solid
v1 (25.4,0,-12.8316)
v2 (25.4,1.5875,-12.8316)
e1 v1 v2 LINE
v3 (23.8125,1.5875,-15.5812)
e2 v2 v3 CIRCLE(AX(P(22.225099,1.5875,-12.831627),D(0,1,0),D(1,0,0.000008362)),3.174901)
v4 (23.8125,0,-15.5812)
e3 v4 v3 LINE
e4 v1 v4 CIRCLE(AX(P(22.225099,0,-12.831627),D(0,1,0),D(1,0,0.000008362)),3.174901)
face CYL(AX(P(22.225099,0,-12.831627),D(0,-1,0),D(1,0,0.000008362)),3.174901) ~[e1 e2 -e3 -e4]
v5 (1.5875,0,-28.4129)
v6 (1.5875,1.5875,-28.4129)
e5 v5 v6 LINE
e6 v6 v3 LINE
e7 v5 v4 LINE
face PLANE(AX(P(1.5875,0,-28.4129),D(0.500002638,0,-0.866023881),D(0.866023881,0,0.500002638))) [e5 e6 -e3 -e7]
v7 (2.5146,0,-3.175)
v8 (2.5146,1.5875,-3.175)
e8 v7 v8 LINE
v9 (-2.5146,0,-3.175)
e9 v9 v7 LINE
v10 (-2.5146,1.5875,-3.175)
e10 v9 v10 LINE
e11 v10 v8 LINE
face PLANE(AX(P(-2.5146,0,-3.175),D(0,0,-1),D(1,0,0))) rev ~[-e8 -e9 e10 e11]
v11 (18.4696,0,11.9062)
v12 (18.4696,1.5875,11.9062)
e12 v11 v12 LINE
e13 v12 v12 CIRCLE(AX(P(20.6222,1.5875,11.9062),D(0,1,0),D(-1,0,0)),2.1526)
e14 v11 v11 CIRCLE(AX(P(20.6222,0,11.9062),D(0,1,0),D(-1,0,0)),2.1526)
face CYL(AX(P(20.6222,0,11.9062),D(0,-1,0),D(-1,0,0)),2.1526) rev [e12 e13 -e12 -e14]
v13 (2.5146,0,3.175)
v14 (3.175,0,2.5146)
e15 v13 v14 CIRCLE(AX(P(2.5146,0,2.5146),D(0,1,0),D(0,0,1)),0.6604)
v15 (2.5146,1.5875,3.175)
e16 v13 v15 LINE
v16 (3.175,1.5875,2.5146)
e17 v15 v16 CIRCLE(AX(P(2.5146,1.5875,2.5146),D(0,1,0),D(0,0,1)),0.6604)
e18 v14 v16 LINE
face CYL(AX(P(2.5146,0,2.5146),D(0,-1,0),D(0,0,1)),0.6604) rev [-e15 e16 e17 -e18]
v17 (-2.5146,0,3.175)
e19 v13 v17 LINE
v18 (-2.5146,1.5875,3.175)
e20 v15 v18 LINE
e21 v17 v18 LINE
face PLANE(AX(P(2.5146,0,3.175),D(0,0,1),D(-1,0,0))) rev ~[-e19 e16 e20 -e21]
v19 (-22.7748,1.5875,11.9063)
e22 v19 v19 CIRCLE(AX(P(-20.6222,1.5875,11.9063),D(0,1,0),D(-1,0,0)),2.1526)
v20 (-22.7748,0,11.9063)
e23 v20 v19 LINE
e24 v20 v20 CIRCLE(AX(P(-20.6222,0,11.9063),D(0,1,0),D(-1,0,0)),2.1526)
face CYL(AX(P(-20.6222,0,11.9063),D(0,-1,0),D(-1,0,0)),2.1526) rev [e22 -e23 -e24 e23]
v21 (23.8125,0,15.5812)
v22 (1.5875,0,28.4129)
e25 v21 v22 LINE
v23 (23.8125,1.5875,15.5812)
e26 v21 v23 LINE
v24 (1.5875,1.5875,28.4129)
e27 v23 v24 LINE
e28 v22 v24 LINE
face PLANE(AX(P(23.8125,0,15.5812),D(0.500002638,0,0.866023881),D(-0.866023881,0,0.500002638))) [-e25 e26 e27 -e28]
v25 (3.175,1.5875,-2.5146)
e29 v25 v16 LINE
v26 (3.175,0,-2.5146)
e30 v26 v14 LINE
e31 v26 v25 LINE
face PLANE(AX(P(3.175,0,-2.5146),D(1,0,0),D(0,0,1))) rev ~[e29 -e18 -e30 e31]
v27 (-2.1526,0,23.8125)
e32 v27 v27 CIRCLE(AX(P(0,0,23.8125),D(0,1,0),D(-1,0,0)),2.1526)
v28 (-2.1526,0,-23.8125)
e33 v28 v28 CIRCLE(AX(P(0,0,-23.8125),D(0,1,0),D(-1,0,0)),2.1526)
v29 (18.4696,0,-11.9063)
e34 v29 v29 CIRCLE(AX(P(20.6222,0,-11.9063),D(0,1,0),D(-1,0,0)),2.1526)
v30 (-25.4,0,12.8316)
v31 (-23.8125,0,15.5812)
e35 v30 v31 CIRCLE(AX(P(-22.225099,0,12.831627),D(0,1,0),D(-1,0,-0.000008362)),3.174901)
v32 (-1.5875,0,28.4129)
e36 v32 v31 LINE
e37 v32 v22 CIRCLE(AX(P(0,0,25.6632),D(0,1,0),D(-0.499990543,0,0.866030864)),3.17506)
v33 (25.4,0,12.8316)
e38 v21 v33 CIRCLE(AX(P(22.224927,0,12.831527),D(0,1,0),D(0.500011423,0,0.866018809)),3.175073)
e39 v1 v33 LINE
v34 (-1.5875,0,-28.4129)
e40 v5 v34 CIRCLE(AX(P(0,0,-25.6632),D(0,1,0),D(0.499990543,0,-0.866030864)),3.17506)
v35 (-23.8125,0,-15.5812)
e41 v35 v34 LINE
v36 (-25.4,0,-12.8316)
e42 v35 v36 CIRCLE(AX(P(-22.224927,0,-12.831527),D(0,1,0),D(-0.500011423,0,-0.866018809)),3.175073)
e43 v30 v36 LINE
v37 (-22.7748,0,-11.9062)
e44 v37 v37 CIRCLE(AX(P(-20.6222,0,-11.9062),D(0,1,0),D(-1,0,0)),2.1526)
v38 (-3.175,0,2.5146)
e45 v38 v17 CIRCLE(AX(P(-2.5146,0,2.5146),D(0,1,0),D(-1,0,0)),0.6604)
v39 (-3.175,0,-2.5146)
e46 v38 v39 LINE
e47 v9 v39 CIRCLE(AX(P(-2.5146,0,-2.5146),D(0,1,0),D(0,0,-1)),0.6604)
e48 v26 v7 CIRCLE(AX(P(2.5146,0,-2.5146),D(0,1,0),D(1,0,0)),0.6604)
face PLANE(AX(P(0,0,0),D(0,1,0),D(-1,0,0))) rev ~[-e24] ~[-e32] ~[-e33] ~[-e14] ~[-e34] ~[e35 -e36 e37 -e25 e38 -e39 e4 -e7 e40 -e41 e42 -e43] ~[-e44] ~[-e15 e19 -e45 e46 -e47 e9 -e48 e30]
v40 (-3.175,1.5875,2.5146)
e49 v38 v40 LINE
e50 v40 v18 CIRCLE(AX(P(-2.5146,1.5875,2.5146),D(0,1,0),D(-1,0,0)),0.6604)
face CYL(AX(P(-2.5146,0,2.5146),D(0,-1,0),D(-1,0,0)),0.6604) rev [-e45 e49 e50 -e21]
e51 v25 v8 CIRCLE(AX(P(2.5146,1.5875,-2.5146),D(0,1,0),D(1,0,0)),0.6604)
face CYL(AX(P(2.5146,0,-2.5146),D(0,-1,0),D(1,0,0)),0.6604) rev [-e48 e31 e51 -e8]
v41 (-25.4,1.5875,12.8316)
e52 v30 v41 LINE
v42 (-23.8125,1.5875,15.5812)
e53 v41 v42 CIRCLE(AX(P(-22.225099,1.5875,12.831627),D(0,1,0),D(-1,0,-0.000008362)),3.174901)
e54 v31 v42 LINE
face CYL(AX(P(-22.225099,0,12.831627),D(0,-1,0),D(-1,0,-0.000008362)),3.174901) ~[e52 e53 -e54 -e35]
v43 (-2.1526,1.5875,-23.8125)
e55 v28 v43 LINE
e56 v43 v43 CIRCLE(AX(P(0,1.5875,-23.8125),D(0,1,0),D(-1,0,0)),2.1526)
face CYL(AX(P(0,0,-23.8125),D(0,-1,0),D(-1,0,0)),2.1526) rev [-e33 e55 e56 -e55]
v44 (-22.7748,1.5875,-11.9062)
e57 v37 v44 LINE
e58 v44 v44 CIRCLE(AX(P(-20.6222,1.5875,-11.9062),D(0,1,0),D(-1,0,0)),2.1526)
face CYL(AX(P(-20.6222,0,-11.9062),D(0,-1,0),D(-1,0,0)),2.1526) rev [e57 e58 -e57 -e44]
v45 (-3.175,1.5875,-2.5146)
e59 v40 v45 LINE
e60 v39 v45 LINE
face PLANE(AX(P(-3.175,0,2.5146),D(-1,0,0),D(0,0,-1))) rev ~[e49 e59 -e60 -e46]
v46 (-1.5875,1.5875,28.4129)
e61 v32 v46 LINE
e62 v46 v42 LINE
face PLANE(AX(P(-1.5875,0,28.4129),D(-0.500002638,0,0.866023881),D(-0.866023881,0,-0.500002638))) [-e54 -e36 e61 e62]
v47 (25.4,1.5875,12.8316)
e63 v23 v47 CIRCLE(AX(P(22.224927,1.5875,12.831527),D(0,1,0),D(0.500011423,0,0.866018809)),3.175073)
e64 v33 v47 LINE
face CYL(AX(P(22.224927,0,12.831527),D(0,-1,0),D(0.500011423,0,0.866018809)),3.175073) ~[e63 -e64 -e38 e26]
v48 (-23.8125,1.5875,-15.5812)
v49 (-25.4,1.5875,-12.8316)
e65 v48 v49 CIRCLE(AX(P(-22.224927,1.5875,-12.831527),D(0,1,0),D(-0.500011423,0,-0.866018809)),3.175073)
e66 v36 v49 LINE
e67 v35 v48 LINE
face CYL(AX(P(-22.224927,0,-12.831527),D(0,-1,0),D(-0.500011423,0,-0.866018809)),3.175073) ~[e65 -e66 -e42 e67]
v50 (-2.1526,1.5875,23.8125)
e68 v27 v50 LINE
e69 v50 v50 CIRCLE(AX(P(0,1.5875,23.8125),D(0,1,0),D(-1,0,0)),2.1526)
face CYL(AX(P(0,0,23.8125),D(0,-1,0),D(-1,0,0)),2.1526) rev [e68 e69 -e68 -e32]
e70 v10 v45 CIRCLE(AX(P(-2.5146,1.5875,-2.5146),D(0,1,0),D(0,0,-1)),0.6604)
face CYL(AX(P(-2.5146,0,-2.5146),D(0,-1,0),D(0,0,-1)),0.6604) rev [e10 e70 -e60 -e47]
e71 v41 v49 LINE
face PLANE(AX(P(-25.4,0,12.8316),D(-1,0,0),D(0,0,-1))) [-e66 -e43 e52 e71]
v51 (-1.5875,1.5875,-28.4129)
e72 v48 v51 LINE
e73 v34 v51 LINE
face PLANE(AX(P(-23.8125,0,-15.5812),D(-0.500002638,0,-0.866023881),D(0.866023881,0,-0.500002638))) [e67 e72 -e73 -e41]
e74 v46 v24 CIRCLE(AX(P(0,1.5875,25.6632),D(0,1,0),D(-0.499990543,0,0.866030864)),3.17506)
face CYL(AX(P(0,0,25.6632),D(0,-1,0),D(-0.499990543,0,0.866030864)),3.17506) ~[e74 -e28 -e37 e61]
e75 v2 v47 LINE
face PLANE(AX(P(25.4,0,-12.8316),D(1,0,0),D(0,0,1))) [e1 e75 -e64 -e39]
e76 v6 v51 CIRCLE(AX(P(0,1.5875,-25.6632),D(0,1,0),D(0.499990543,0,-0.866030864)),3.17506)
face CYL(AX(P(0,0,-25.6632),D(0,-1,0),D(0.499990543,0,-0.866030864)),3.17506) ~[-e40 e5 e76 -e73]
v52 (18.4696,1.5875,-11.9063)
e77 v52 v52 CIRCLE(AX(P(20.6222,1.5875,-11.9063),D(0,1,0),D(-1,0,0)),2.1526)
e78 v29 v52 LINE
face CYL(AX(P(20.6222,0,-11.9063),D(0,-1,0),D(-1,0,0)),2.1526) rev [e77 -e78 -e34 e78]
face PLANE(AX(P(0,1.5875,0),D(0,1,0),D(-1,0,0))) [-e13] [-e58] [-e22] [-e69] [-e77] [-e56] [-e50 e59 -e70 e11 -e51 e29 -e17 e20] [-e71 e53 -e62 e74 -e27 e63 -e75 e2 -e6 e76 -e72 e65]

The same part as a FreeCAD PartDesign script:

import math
import FreeCAD as App
import Part
import Sketcher
Q = App.Units.Quantity

doc = App.newDocument("Part")
body = doc.addObject("PartDesign::Body", "Body")

# Sketch on XZ plane
sketch1 = doc.addObject("Sketcher::SketchObject", "Sketch")
body.addObject(sketch1)
sketch1.AttachmentSupport = (doc.XZ_Plane, [""])
sketch1.MapMode = "FlatFace"
sketch1.addGeometry(Part.LineSegment(App.Vector(-23.8, 15.6, 0), App.Vector(-1.6, 28.4, 0)), False)
sketch1.addGeometry(Part.ArcOfCircle(Part.Circle(App.Vector(0, 25.7, 0), App.Vector(0, 0, 1), 3.2), math.radians(60), math.radians(120)), False)
sketch1.addGeometry(Part.LineSegment(App.Vector(1.6, 28.4, 0), App.Vector(23.8, 15.6, 0)), False)
sketch1.addGeometry(Part.ArcOfCircle(Part.Circle(App.Vector(22.2, 12.8, 0), App.Vector(0, 0, 1), 3.2), math.radians(0), math.radians(60)), False)
sketch1.addGeometry(Part.LineSegment(App.Vector(25.4, 12.8, 0), App.Vector(25.4, -12.8, 0)), False)
sketch1.addGeometry(Part.ArcOfCircle(Part.Circle(App.Vector(22.2, -12.8, 0), App.Vector(0, 0, 1), 3.2), math.radians(-60), math.radians(0)), False)
sketch1.addGeometry(Part.LineSegment(App.Vector(23.8, -15.6, 0), App.Vector(1.6, -28.4, 0)), False)
sketch1.addGeometry(Part.ArcOfCircle(Part.Circle(App.Vector(0, -25.7, 0), App.Vector(0, 0, 1), 3.2), math.radians(-120), math.radians(-60)), False)
sketch1.addGeometry(Part.LineSegment(App.Vector(-1.6, -28.4, 0), App.Vector(-23.8, -15.6, 0)), False)
sketch1.addGeometry(Part.ArcOfCircle(Part.Circle(App.Vector(-22.2, -12.8, 0), App.Vector(0, 0, 1), 3.2), math.radians(180), math.radians(240)), False)
sketch1.addGeometry(Part.LineSegment(App.Vector(-25.4, -12.8, 0), App.Vector(-25.4, 12.8, 0)), False)
sketch1.addGeometry(Part.ArcOfCircle(Part.Circle(App.Vector(-22.2, 12.8, 0), App.Vector(0, 0, 1), 3.2), math.radians(120), math.radians(180)), False)
sketch1.addGeometry(Part.Circle(App.Vector(20.6, -11.9, 0), App.Vector(0, 0, 1), 2.2), False)
sketch1.addGeometry(Part.Circle(App.Vector(0, -23.8, 0), App.Vector(0, 0, 1), 2.2), False)
sketch1.addGeometry(Part.Circle(App.Vector(-20.6, -11.9, 0), App.Vector(0, 0, 1), 2.2), False)
sketch1.addGeometry(Part.Circle(App.Vector(20.6, 11.9, 0), App.Vector(0, 0, 1), 2.2), False)
sketch1.addGeometry(Part.ArcOfCircle(Part.Circle(App.Vector(-2.5, -2.5, 0), App.Vector(0, 0, 1), 0.7), math.radians(180), math.radians(270)), False)
sketch1.addGeometry(Part.LineSegment(App.Vector(-2.5, -3.2, 0), App.Vector(2.5, -3.2, 0)), False)
sketch1.addGeometry(Part.ArcOfCircle(Part.Circle(App.Vector(2.5, -2.5, 0), App.Vector(0, 0, 1), 0.7), math.radians(-90), math.radians(0)), False)
sketch1.addGeometry(Part.LineSegment(App.Vector(3.2, -2.5, 0), App.Vector(3.2, 2.5, 0)), False)
sketch1.addGeometry(Part.ArcOfCircle(Part.Circle(App.Vector(2.5, 2.5, 0), App.Vector(0, 0, 1), 0.7), math.radians(0), math.radians(90)), False)
sketch1.addGeometry(Part.LineSegment(App.Vector(2.5, 3.2, 0), App.Vector(-2.5, 3.2, 0)), False)
sketch1.addGeometry(Part.ArcOfCircle(Part.Circle(App.Vector(-2.5, 2.5, 0), App.Vector(0, 0, 1), 0.7), math.radians(90), math.radians(180)), False)
sketch1.addGeometry(Part.LineSegment(App.Vector(-3.2, 2.5, 0), App.Vector(-3.2, -2.5, 0)), False)
sketch1.addGeometry(Part.Circle(App.Vector(-20.6, 11.9, 0), App.Vector(0, 0, 1), 2.2), False)
sketch1.addGeometry(Part.Circle(App.Vector(0, 23.8, 0), App.Vector(0, 0, 1), 2.2), False)
sketch1.addConstraint(Sketcher.Constraint("Tangent", 0, 2, 1, 2))
sketch1.addConstraint(Sketcher.Constraint("Tangent", 1, 1, 2, 1))
sketch1.addConstraint(Sketcher.Constraint("Tangent", 2, 2, 3, 2))
sketch1.addConstraint(Sketcher.Constraint("Tangent", 3, 1, 4, 1))
sketch1.addConstraint(Sketcher.Constraint("Tangent", 4, 2, 5, 2))
sketch1.addConstraint(Sketcher.Constraint("Tangent", 5, 1, 6, 1))
sketch1.addConstraint(Sketcher.Constraint("Tangent", 6, 2, 7, 2))
sketch1.addConstraint(Sketcher.Constraint("Tangent", 7, 1, 8, 1))
sketch1.addConstraint(Sketcher.Constraint("Tangent", 8, 2, 9, 2))
sketch1.addConstraint(Sketcher.Constraint("Tangent", 9, 1, 10, 1))
sketch1.addConstraint(Sketcher.Constraint("Tangent", 10, 2, 11, 2))
sketch1.addConstraint(Sketcher.Constraint("Tangent", 11, 1, 0, 1))
sketch1.addConstraint(Sketcher.Constraint("Tangent", 16, 2, 17, 1))
sketch1.addConstraint(Sketcher.Constraint("Tangent", 17, 2, 18, 1))
sketch1.addConstraint(Sketcher.Constraint("Tangent", 18, 2, 19, 1))
sketch1.addConstraint(Sketcher.Constraint("Tangent", 19, 2, 20, 1))
sketch1.addConstraint(Sketcher.Constraint("Tangent", 20, 2, 21, 1))
sketch1.addConstraint(Sketcher.Constraint("Tangent", 21, 2, 22, 1))
sketch1.addConstraint(Sketcher.Constraint("Tangent", 22, 2, 23, 1))
sketch1.addConstraint(Sketcher.Constraint("Tangent", 23, 2, 16, 1))
sketch1.addConstraint(Sketcher.Constraint("Vertical", 4))
sketch1.addConstraint(Sketcher.Constraint("Vertical", 10))
sketch1.addConstraint(Sketcher.Constraint("Horizontal", 17))
sketch1.addConstraint(Sketcher.Constraint("Vertical", 19))
sketch1.addConstraint(Sketcher.Constraint("Horizontal", 21))
sketch1.addConstraint(Sketcher.Constraint("Vertical", 23))
sketch1.addConstraint(Sketcher.Constraint("Equal", 1, 3))
sketch1.addConstraint(Sketcher.Constraint("Equal", 3, 5))
sketch1.addConstraint(Sketcher.Constraint("Equal", 5, 7))
sketch1.addConstraint(Sketcher.Constraint("Equal", 7, 9))
sketch1.addConstraint(Sketcher.Constraint("Equal", 9, 11))
sketch1.addConstraint(Sketcher.Constraint("Equal", 12, 13))
sketch1.addConstraint(Sketcher.Constraint("Equal", 13, 14))
sketch1.addConstraint(Sketcher.Constraint("Equal", 14, 15))
sketch1.addConstraint(Sketcher.Constraint("Equal", 16, 18))
sketch1.addConstraint(Sketcher.Constraint("Equal", 18, 20))
sketch1.addConstraint(Sketcher.Constraint("Equal", 20, 22))
sketch1.addConstraint(Sketcher.Constraint("Equal", 15, 24))
sketch1.addConstraint(Sketcher.Constraint("Equal", 24, 25))
sketch1.addConstraint(Sketcher.Constraint("Symmetric", 1, 3, 7, 3, -1, 1))
sketch1.addConstraint(Sketcher.Constraint("Symmetric", 3, 3, 9, 3, -1, 1))
sketch1.addConstraint(Sketcher.Constraint("Symmetric", 14, 3, 15, 3, -1, 1))
sketch1.addConstraint(Sketcher.Constraint("Symmetric", 16, 3, 20, 3, -1, 1))
sketch1.addConstraint(Sketcher.Constraint("Symmetric", 12, 3, 24, 3, -1, 1))
sketch1.addConstraint(Sketcher.Constraint("Symmetric", 13, 3, 25, 3, -1, 1))
sketch1.addConstraint(Sketcher.Constraint("Symmetric", 12, 3, 14, 3, -2))
sketch1.addConstraint(Sketcher.Constraint("Symmetric", 0, 2, 1, 1, -2))
sketch1.addConstraint(Sketcher.Constraint("PointOnObject", 13, 3, -2))
sketch1.addConstraint(Sketcher.Constraint("Parallel", 0, 6))
sketch1.addConstraint(Sketcher.Constraint("Equal", 21, 19))
sketch1.addConstraint(Sketcher.Constraint("Radius", 1, Q("0.125 in")))
sketch1.addConstraint(Sketcher.Constraint("DistanceY", 16, 2, -1, 1, Q("0.125 in")))
sketch1.addConstraint(Sketcher.Constraint("DistanceX", -1, 1, 3, 1, Q("1 in")))
sketch1.addConstraint(Sketcher.Constraint("Angle", 0, Q("30.0002 deg")))
sketch1.addConstraint(Sketcher.Constraint("Radius", 16, Q("0.026 in")))
sketch1.addConstraint(Sketcher.Constraint("Diameter", 12, Q("0.1695 in")))
sketch1.addConstraint(Sketcher.Constraint("DistanceY", 12, 3, -1, 1, Q("0.468752 in")))
sketch1.addConstraint(Sketcher.Constraint("DistanceY", 13, 3, -1, 1, Q("0.9375 in")))
sketch1.addConstraint(Sketcher.Constraint("DistanceY", 4, 2, 4, 1, 25.6632))
sketch1.addConstraint(Sketcher.Constraint("DistanceX", -1, 1, 12, 3, Q("0.8119 in")))
pad1 = doc.addObject("PartDesign::Pad", "Pad")
body.addObject(pad1)
pad1.Profile = sketch1
pad1.Length = Q("0.0625 in")
pad1.Reversed = True

doc.recompute()
